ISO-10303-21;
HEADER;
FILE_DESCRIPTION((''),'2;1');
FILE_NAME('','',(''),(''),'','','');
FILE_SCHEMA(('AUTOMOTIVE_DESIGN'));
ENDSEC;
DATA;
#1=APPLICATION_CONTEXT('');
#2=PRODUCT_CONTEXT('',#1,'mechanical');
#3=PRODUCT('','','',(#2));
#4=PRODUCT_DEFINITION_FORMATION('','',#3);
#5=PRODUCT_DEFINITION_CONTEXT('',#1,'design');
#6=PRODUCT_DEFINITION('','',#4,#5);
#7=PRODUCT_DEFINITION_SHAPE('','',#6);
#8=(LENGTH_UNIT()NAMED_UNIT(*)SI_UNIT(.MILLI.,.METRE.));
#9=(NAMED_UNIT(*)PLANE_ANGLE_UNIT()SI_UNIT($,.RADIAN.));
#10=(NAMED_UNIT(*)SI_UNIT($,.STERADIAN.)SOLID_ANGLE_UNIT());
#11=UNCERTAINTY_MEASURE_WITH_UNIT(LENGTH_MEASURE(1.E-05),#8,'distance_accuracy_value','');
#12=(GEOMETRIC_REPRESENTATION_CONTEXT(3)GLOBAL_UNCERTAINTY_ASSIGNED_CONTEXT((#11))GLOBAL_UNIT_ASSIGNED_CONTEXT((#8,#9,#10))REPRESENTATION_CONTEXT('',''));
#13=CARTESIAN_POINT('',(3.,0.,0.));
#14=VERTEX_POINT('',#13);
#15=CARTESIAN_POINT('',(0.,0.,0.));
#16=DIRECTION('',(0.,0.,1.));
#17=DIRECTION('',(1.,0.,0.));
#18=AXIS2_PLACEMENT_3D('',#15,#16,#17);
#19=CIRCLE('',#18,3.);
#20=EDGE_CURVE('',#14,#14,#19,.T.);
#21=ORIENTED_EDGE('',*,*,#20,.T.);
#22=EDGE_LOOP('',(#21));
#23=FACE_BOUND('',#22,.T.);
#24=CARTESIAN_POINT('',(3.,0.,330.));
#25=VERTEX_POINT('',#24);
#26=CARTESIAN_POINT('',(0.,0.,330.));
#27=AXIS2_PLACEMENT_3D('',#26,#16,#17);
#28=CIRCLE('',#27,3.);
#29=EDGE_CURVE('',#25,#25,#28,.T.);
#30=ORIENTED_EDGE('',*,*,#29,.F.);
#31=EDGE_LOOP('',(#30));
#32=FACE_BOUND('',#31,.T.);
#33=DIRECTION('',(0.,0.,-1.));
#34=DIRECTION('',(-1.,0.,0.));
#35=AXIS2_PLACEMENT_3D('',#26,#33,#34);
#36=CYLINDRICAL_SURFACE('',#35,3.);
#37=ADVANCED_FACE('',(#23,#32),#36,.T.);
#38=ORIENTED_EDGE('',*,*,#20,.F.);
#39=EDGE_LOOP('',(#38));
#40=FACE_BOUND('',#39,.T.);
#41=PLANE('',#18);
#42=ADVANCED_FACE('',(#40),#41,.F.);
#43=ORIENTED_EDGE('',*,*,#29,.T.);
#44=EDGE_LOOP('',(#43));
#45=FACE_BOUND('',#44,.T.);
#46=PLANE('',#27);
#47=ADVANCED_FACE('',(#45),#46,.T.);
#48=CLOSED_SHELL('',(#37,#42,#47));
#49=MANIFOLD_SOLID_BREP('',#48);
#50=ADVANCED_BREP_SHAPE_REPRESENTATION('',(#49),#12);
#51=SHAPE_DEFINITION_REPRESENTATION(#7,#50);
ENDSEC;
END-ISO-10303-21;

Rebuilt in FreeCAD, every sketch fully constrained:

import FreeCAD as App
import Part
import Sketcher

V = App.Vector

doc = App.newDocument("Part")
body = doc.addObject("PartDesign::Body", "Body")

# Sketch on XY plane
sketch1 = doc.addObject("Sketcher::SketchObject", "Sketch")
body.addObject(sketch1)
sketch1.AttachmentSupport = (doc.XY_Plane, [""])
sketch1.MapMode = "FlatFace"
sketch1.addGeometry(Part.Circle(V(0, 0, 0), V(0, 0, 1), 3), False)
sketch1.addConstraint(Sketcher.Constraint("Coincident", 0, 3, -1, 1))
sketch1.addConstraint(Sketcher.Constraint("Diameter", 0, 6.0))
pad1 = doc.addObject("PartDesign::Pad", "Pad")
body.addObject(pad1)
pad1.Profile = sketch1
pad1.Length = 330

doc.recompute()
